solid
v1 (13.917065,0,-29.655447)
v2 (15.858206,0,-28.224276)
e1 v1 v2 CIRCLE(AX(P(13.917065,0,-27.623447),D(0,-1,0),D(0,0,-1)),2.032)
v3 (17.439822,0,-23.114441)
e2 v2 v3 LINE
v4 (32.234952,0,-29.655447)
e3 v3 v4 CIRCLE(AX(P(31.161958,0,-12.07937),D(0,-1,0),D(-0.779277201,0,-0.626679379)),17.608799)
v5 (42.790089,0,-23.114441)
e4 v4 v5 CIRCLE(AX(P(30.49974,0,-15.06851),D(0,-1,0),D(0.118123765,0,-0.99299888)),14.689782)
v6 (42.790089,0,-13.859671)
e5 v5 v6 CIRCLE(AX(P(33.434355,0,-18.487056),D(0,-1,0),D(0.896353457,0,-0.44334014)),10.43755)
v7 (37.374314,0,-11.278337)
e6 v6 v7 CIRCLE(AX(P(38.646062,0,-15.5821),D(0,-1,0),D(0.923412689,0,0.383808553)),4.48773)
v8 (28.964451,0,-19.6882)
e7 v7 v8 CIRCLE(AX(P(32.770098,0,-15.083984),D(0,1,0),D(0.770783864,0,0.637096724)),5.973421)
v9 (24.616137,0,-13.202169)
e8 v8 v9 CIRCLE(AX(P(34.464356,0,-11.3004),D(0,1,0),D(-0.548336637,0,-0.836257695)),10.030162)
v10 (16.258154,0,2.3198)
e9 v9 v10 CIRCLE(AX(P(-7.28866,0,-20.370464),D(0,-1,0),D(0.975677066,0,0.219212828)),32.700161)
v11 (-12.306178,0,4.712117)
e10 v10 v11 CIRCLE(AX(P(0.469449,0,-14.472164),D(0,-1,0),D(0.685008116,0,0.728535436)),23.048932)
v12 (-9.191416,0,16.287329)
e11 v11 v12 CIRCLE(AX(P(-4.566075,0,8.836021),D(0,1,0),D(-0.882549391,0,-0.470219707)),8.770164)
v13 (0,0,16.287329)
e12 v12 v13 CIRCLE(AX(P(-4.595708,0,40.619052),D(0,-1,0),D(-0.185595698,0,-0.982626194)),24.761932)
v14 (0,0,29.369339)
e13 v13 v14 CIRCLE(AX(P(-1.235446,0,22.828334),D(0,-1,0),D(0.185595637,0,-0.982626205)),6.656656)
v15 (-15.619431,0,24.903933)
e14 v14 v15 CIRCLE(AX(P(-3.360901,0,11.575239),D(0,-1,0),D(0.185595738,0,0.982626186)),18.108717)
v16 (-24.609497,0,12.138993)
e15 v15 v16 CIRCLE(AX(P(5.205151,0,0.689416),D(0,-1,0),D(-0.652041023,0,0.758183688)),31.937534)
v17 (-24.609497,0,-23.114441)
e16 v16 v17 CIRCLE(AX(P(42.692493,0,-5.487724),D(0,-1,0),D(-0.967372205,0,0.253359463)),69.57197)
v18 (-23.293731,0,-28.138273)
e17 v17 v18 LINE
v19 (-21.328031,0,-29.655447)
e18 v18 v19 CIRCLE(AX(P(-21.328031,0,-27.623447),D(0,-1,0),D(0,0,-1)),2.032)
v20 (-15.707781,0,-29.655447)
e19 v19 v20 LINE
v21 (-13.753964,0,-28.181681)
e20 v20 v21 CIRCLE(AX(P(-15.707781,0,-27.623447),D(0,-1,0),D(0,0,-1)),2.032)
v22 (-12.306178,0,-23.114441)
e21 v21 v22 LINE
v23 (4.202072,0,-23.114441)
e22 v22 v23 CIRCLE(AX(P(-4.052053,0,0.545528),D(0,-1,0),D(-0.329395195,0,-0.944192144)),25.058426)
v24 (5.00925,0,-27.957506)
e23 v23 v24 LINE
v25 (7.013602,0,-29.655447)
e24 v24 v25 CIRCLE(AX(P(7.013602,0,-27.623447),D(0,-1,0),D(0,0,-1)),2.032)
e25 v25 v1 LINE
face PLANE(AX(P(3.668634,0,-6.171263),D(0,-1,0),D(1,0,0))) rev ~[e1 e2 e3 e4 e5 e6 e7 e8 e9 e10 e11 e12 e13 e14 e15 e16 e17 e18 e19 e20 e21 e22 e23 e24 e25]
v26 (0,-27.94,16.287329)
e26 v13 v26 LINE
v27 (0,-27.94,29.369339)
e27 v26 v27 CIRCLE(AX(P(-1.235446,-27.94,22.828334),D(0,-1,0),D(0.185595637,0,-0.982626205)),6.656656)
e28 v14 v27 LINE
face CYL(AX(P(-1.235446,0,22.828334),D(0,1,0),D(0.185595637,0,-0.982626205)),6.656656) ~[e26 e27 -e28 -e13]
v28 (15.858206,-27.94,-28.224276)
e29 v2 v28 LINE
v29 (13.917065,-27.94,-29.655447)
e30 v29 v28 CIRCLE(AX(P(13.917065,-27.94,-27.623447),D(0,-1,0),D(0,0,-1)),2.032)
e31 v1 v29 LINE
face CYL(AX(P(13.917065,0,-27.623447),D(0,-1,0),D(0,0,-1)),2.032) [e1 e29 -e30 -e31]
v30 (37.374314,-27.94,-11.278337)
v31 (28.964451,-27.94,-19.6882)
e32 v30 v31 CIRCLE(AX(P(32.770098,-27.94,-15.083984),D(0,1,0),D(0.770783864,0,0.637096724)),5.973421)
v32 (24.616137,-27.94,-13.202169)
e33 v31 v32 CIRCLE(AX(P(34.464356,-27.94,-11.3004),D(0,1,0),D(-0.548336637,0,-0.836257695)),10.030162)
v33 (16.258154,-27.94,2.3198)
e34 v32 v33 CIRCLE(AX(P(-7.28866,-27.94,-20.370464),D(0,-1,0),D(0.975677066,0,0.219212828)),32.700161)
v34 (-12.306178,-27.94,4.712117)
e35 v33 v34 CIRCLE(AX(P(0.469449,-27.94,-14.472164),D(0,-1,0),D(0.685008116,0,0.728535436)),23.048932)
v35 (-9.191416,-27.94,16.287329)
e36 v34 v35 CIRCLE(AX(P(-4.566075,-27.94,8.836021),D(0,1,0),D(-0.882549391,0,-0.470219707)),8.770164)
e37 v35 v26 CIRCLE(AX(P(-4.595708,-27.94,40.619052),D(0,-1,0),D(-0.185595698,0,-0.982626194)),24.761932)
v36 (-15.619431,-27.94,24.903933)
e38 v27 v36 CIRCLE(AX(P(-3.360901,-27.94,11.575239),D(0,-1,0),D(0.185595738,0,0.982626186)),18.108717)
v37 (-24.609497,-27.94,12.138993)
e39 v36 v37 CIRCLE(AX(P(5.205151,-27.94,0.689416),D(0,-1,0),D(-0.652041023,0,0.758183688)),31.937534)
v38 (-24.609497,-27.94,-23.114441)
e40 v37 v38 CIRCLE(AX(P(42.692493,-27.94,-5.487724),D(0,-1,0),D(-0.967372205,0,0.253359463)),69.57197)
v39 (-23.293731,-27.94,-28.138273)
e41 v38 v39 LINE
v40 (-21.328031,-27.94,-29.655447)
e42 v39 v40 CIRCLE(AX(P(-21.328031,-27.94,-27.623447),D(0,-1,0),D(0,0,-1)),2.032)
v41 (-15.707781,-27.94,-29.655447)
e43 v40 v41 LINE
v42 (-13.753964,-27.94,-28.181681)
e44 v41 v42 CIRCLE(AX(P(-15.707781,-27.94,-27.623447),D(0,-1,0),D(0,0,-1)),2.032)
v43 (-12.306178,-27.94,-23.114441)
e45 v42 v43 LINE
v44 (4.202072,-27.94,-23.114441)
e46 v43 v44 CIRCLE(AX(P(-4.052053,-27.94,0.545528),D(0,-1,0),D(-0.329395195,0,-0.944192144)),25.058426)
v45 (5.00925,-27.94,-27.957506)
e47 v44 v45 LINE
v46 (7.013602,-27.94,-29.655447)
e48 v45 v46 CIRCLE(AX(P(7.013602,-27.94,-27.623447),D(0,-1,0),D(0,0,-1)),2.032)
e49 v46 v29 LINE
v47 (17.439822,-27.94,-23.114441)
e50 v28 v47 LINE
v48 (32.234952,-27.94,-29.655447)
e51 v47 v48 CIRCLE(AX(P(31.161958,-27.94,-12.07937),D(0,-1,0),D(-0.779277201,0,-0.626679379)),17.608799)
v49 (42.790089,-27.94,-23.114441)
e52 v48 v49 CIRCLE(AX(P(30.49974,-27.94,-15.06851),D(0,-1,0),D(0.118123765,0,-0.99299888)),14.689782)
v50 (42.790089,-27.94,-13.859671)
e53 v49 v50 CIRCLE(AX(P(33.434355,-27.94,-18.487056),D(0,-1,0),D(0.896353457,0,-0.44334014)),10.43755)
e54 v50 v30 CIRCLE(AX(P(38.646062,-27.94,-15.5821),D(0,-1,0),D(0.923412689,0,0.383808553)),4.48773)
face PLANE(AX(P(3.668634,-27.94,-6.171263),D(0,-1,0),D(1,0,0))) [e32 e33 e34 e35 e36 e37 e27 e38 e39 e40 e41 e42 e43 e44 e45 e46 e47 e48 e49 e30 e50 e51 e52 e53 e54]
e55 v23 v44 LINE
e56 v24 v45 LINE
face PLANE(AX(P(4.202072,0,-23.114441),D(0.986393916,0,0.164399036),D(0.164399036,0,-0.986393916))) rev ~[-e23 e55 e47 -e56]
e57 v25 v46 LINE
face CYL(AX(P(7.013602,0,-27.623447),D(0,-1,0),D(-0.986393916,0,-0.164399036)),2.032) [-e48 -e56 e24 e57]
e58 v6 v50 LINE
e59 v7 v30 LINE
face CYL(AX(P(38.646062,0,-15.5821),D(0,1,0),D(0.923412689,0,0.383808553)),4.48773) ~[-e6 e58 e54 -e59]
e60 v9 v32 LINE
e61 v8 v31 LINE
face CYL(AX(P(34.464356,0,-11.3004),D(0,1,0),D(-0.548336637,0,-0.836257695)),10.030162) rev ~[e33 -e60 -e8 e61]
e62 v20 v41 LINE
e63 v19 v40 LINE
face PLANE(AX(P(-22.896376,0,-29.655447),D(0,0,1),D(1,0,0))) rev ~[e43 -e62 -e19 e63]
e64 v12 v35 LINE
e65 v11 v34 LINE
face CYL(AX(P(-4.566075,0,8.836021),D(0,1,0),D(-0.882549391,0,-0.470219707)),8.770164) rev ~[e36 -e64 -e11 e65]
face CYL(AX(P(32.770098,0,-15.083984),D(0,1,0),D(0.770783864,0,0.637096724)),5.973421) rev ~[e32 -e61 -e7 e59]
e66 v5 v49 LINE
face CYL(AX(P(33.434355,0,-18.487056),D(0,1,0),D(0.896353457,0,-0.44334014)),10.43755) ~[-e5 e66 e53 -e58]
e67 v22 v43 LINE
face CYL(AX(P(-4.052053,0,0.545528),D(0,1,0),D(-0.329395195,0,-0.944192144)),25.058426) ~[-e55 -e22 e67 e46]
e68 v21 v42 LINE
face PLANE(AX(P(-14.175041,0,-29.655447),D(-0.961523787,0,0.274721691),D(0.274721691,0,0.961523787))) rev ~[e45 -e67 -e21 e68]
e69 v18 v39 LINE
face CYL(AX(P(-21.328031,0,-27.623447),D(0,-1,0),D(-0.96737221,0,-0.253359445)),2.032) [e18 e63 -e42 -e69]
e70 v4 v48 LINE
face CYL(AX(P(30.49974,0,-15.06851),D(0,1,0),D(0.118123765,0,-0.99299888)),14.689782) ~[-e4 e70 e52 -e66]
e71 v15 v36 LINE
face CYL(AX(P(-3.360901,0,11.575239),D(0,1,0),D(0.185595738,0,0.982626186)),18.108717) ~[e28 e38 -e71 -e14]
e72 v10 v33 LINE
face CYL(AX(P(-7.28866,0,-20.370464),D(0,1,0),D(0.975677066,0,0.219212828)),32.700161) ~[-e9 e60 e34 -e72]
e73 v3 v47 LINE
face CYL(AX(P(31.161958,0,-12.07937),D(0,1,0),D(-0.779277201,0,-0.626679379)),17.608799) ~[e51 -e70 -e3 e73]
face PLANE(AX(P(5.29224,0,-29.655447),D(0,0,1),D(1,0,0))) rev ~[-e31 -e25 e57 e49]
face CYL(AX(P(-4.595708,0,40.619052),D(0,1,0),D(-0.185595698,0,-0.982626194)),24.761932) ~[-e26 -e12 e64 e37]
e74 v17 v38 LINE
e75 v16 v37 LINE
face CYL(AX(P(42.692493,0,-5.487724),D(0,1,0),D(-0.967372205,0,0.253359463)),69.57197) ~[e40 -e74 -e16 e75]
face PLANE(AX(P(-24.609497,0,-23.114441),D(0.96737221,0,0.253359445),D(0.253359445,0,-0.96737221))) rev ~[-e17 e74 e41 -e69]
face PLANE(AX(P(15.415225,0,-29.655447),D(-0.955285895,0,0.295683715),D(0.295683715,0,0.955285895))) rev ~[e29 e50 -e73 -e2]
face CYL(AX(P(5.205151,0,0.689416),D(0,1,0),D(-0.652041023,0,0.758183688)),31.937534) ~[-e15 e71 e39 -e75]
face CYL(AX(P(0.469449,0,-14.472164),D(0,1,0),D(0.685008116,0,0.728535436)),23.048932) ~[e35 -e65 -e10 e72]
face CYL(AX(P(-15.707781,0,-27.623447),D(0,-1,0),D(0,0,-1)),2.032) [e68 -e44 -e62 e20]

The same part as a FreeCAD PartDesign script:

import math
import FreeCAD as App
import Part
import Sketcher

V = App.Vector
Q = App.Units.Quantity


def edges_at(feature, points):
    """Names of the edges that pass closest to the given points."""
    edges = feature.Shape.Edges
    near = lambda p: min(range(len(edges)), key=lambda i: edges[i].distToShape(Part.Vertex(*p))[0])
    return sorted({f"Edge{near(p) + 1}" for p in points})

doc = App.newDocument("Part")
body = doc.addObject("PartDesign::Body", "Body")

# Sketch on XZ plane
sketch1 = doc.addObject("Sketcher::SketchObject", "Sketch")
body.addObject(sketch1)
sketch1.AttachmentSupport = (doc.XZ_Plane, [""])
sketch1.MapMode = "FlatFace"
sketch1.addGeometry(Part.ArcOfCircle(Part.Circle(V(32.8, -15.1, 0), V(0, 0, 1), 6), math.radians(-130), math.radians(40)), False)
sketch1.addGeometry(Part.ArcOfCircle(Part.Circle(V(34.5, -11.3, 0), V(0, 0, 1), 10), math.radians(-169), math.radians(-123)), False)
sketch1.addGeometry(Part.ArcOfCircle(Part.Circle(V(-7.3, -20.4, 0), V(0, 0, 1), 32.7), math.radians(13), math.radians(44)), False)
sketch1.addGeometry(Part.ArcOfCircle(Part.Circle(V(0.5, -14.5, 0), V(0, 0, 1), 23), math.radians(47), math.radians(124)), False)
sketch1.addGeometry(Part.ArcOfCircle(Part.Circle(V(-4.6, 8.8, 0), V(0, 0, 1), 8.8), math.radians(122), math.radians(208)), False)
sketch1.addGeometry(Part.ArcOfCircle(Part.Circle(V(-4.6, 40.6, 0), V(0, 0, 1), 24.8), math.radians(-101), math.radians(-79)), False)
sketch1.addGeometry(Part.ArcOfCircle(Part.Circle(V(-1.2, 22.8, 0), V(0, 0, 1), 6.7), math.radians(-79), math.radians(79)), False)
sketch1.addGeometry(Part.ArcOfCircle(Part.Circle(V(-3.4, 11.6, 0), V(0, 0, 1), 18.1), math.radians(79), math.radians(133)), False)
sketch1.addGeometry(Part.ArcOfCircle(Part.Circle(V(5.2, 0.7, 0), V(0, 0, 1), 31.9), math.radians(131), math.radians(159)), False)
sketch1.addGeometry(Part.ArcOfCircle(Part.Circle(V(42.7, -5.5, 0), V(0, 0, 1), 69.6), math.radians(165), math.radians(195)), False)
sketch1.addGeometry(Part.LineSegment(V(-24.6, -23.1, 0), V(-22.9, -29.7, 0)), False)
sketch1.addGeometry(Part.LineSegment(V(-22.9, -29.7, 0), V(-14.2, -29.7, 0)), False)
sketch1.addGeometry(Part.LineSegment(V(-14.2, -29.7, 0), V(-12.3, -23.1, 0)), False)
sketch1.addGeometry(Part.ArcOfCircle(Part.Circle(V(-4.1, 0.5, 0), V(0, 0, 1), 25.1), math.radians(-109), math.radians(-71)), False)
sketch1.addGeometry(Part.LineSegment(V(4.2, -23.1, 0), V(5.3, -29.7, 0)), False)
sketch1.addGeometry(Part.LineSegment(V(5.3, -29.7, 0), V(15.4, -29.7, 0)), False)
sketch1.addGeometry(Part.LineSegment(V(15.4, -29.7, 0), V(17.4, -23.1, 0)), False)
sketch1.addGeometry(Part.ArcOfCircle(Part.Circle(V(31.2, -12.1, 0), V(0, 0, 1), 17.6), math.radians(-141), math.radians(-87)), False)
sketch1.addGeometry(Part.ArcOfCircle(Part.Circle(V(30.5, -15.1, 0), V(0, 0, 1), 14.7), math.radians(-83), math.radians(-33)), False)
sketch1.addGeometry(Part.ArcOfCircle(Part.Circle(V(33.4, -18.5, 0), V(0, 0, 1), 10.4), math.radians(-26), math.radians(26)), False)
sketch1.addGeometry(Part.ArcOfCircle(Part.Circle(V(38.6, -15.6, 0), V(0, 0, 1), 4.5), math.radians(23), math.radians(106)), False)
sketch1.addConstraint(Sketcher.Constraint("Coincident", 0, 1, 1, 2))
sketch1.addConstraint(Sketcher.Constraint("Coincident", 1, 1, 2, 1))
sketch1.addConstraint(Sketcher.Constraint("Coincident", 2, 2, 3, 1))
sketch1.addConstraint(Sketcher.Constraint("Coincident", 3, 2, 4, 2))
sketch1.addConstraint(Sketcher.Constraint("Coincident", 4, 1, 5, 1))
sketch1.addConstraint(Sketcher.Constraint("Tangent", 5, 2, 6, 1))
sketch1.addConstraint(Sketcher.Constraint("Tangent", 6, 2, 7, 1))
sketch1.addConstraint(Sketcher.Constraint("Coincident", 7, 2, 8, 1))
sketch1.addConstraint(Sketcher.Constraint("Coincident", 8, 2, 9, 1))
sketch1.addConstraint(Sketcher.Constraint("Tangent", 9, 2, 10, 1))
sketch1.addConstraint(Sketcher.Constraint("Coincident", 10, 2, 11, 1))
sketch1.addConstraint(Sketcher.Constraint("Coincident", 11, 2, 12, 1))
sketch1.addConstraint(Sketcher.Constraint("Coincident", 12, 2, 13, 1))
sketch1.addConstraint(Sketcher.Constraint("Coincident", 13, 2, 14, 1))
sketch1.addConstraint(Sketcher.Constraint("Coincident", 14, 2, 15, 1))
sketch1.addConstraint(Sketcher.Constraint("Coincident", 15, 2, 16, 1))
sketch1.addConstraint(Sketcher.Constraint("Coincident", 16, 2, 17, 1))
sketch1.addConstraint(Sketcher.Constraint("Coincident", 17, 2, 18, 1))
sketch1.addConstraint(Sketcher.Constraint("Coincident", 18, 2, 19, 1))
sketch1.addConstraint(Sketcher.Constraint("Coincident", 19, 2, 20, 1))
sketch1.addConstraint(Sketcher.Constraint("Coincident", 20, 2, 0, 2))
sketch1.addConstraint(Sketcher.Constraint("Horizontal", 11))
sketch1.addConstraint(Sketcher.Constraint("Horizontal", 15))
sketch1.addConstraint(Sketcher.Constraint("PointOnObject", 5, 2, -2))
sketch1.addConstraint(Sketcher.Constraint("PointOnObject", 6, 2, -2))
sketch1.addConstraint(Sketcher.Constraint("Horizontal", 4, 1, 5, 2))
sketch1.addConstraint(Sketcher.Constraint("Horizontal", 9, 2, 12, 2))
sketch1.addConstraint(Sketcher.Constraint("Horizontal", 12, 2, 13, 2))
sketch1.addConstraint(Sketcher.Constraint("Horizontal", 11, 2, 14, 2))
sketch1.addConstraint(Sketcher.Constraint("Horizontal", 13, 2, 16, 2))
sketch1.addConstraint(Sketcher.Constraint("Horizontal", 15, 2, 17, 2))
sketch1.addConstraint(Sketcher.Constraint("Horizontal", 16, 2, 18, 2))
sketch1.addConstraint(Sketcher.Constraint("Vertical", 8, 2, 9, 2))
sketch1.addConstraint(Sketcher.Constraint("Vertical", 3, 2, 12, 2))
sketch1.addConstraint(Sketcher.Constraint("Vertical", 18, 2, 19, 2))
sketch1.addConstraint(Sketcher.Constraint("Radius", 17, Q("17.608799 mm")))
sketch1.addConstraint(Sketcher.Constraint("Radius", 0, Q("5.973421 mm")))
sketch1.addConstraint(Sketcher.Constraint("Radius", 1, Q("10.030162 mm")))
sketch1.addConstraint(Sketcher.Constraint("Radius", 2, Q("32.700161 mm")))
sketch1.addConstraint(Sketcher.Constraint("Radius", 3, Q("23.048932 mm")))
sketch1.addConstraint(Sketcher.Constraint("Radius", 5, Q("24.761932 mm")))
sketch1.addConstraint(Sketcher.Constraint("Radius", 9, Q("69.57197 mm")))
sketch1.addConstraint(Sketcher.Constraint("Radius", 18, Q("14.689782 mm")))
sketch1.addConstraint(Sketcher.Constraint("Radius", 19, Q("10.43755 mm")))
sketch1.addConstraint(Sketcher.Constraint("Radius", 20, Q("4.48773 mm")))
sketch1.addConstraint(Sketcher.Constraint("Radius", 4, Q("8.770164 mm")))
sketch1.addConstraint(Sketcher.Constraint("Radius", 6, Q("6.656656 mm")))
sketch1.addConstraint(Sketcher.Constraint("Radius", 7, Q("18.108717 mm")))
sketch1.addConstraint(Sketcher.Constraint("Radius", 8, Q("31.937534 mm")))
sketch1.addConstraint(Sketcher.Constraint("Radius", 13, Q("25.058426 mm")))
sketch1.addConstraint(Sketcher.Constraint("DistanceX", 4, 1, 4, 3, Q("0.1821 in")))
sketch1.addConstraint(Sketcher.Constraint("DistanceY", 1, 3, -1, 1, Q("11.3004 mm")))
sketch1.addConstraint(Sketcher.Constraint("DistanceX", 7, 3, -1, 1, Q("3.360901 mm")))
sketch1.addConstraint(Sketcher.Constraint("DistanceY", 20, 3, -1, 1, Q("15.5821 mm")))
sketch1.addConstraint(Sketcher.Constraint("DistanceY", 0, 1, -1, 1, Q("19.6882 mm")))
sketch1.addConstraint(Sketcher.Constraint("DistanceY", -1, 1, 2, 2, Q("2.3198 mm")))
sketch1.addConstraint(Sketcher.Constraint("DistanceY", 2, 3, 3, 3, Q("5.8983 mm")))
sketch1.addConstraint(Sketcher.Constraint("DistanceX", 13, 3, 3, 3, Q("4.521502 mm")))
sketch1.addConstraint(Sketcher.Constraint("DistanceX", 17, 3, 1, 3, Q("3.302398 mm")))
sketch1.addConstraint(Sketcher.Constraint("DistanceX", 19, 3, 1, 3, Q("1.030002 mm")))
sketch1.addConstraint(Sketcher.Constraint("DistanceY", 1, 1, 17, 3, Q("1.122799 mm")))
sketch1.addConstraint(Sketcher.Constraint("DistanceY", 8, 3, 3, 2, Q("4.022701 mm")))
sketch1.addConstraint(Sketcher.Constraint("DistanceY", 13, 3, 4, 1, Q("15.741801 mm")))
sketch1.addConstraint(Sketcher.Constraint("DistanceY", 6, 3, 7, 2, Q("2.075599 mm")))
sketch1.addConstraint(Sketcher.Constraint("DistanceX", 10, 2, 3, 2, Q("10.590198 mm")))
sketch1.addConstraint(Sketcher.Constraint("DistanceX", 2, 3, 14, 2, Q("12.5809 mm")))
sketch1.addConstraint(Sketcher.Constraint("DistanceX", 0, 1, 17, 2, Q("3.270501 mm")))
sketch1.addConstraint(Sketcher.Constraint("Distance", 12, Q("6.80275 mm")))
sketch1.addConstraint(Sketcher.Constraint("Distance", 14, Q("6.631231 mm")))
sketch1.addConstraint(Sketcher.Constraint("Distance", 16, Q("6.847171 mm")))
sketch1.addConstraint(Sketcher.Constraint("DistanceX", 11, 1, 11, 2, Q("8.721335 mm")))
sketch1.addConstraint(Sketcher.Constraint("DistanceX", 15, 1, 15, 2, Q("10.122985 mm")))
sketch1.addConstraint(Sketcher.Constraint("DistanceX", 2, 3, -1, 1, Q("7.28866 mm")))
sketch1.addConstraint(Sketcher.Constraint("DistanceX", -1, 1, 18, 3, Q("30.49974 mm")))
sketch1.addConstraint(Sketcher.Constraint("DistanceX", 0, 3, 1, 3, Q("1.694259 mm")))
pad1 = doc.addObject("PartDesign::Pad", "Pad")
body.addObject(pad1)
pad1.Profile = sketch1
pad1.Length = Q("1.1 in")
doc.recompute()

fillet = doc.addObject("PartDesign::Fillet", "Fillet")
body.addObject(fillet)
fillet.Base = (pad1, edges_at(pad1, [
    (15.415, -13.97, -29.655),
    (5.292, -13.97, -29.655),
    (-14.175, -13.97, -29.655),
    (-22.896, -13.97, -29.655),
]))
fillet.Radius = Q("0.08 in")

doc.recompute()
